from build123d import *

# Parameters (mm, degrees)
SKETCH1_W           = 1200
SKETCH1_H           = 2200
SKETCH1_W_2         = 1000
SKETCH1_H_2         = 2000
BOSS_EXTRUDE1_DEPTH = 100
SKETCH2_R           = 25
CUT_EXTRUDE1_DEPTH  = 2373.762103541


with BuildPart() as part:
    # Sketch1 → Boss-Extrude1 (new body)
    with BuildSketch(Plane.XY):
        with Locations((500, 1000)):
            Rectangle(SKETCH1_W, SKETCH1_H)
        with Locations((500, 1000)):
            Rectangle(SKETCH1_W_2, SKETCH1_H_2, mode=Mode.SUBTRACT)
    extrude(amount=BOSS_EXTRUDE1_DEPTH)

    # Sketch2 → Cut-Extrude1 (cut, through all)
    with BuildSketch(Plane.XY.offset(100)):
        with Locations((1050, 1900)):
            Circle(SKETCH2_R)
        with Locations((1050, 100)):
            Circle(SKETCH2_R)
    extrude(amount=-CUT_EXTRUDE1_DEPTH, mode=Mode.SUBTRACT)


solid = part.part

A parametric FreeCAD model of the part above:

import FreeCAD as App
import Part
import Sketcher


def add_polygon(sketch, points):
    """Adds a closed chain of lines whose ends are joined by coincident constraints."""
    first, n = sketch.GeometryCount, len(points)
    for a, b in zip(points, points[1:] + points[:1]):
        sketch.addGeometry(Part.LineSegment(App.Vector(*a, 0), App.Vector(*b, 0)), False)
    for i in range(n):
        sketch.addConstraint(Sketcher.Constraint("Coincident", first + i, 2, first + (i + 1) % n, 1))

doc = App.newDocument("Part")
body = doc.addObject("PartDesign::Body", "Body")

# Sketch on XY plane
sketch1 = doc.addObject("Sketcher::SketchObject", "Sketch")
body.addObject(sketch1)
sketch1.AttachmentSupport = (doc.XY_Plane, [""])
sketch1.MapMode = "FlatFace"
add_polygon(sketch1, [(-100, 2100), (-100, -100), (1100, -100), (1100, 2100)])  # lines 0-3
add_polygon(sketch1, [(1000, 0), (0, 0), (0, 2000), (1000, 2000)])  # lines 4-7
sketch1.addConstraint([
    Sketcher.Constraint("Vertical", 0),
    Sketcher.Constraint("Horizontal", 1),
    Sketcher.Constraint("Vertical", 2),
    Sketcher.Constraint("Horizontal", 3),
    Sketcher.Constraint("Horizontal", 4),
    Sketcher.Constraint("Vertical", 5),
    Sketcher.Constraint("Horizontal", 6),
    Sketcher.Constraint("Vertical", 7),
    Sketcher.Constraint("Coincident", 4, 2, -1, 1),
    Sketcher.Constraint("DistanceX", 1, 1, 1, 2, 1200.0),
    Sketcher.Constraint("DistanceX", 4, 2, 4, 1, 1000.0),
    Sketcher.Constraint("DistanceY", 0, 2, 0, 1, 2200.0),
    Sketcher.Constraint("DistanceY", 5, 1, 5, 2, 2000.0),
    Sketcher.Constraint("DistanceX", 0, 2, -1, 1, 100.0),
    Sketcher.Constraint("DistanceY", 0, 2, -1, 1, 100.0),
])
pad1 = doc.addObject("PartDesign::Pad", "Pad")
body.addObject(pad1)
pad1.Profile = sketch1
pad1.Length = 100

# Sketch on XY plane
sketch2 = doc.addObject("Sketcher::SketchObject", "Sketch001")
body.addObject(sketch2)
sketch2.AttachmentSupport = (doc.XY_Plane, [""])
sketch2.MapMode = "FlatFace"
sketch2.AttachmentOffset = App.Placement(App.Vector(0, 0, 100), App.Rotation())
sketch2.addGeometry([
    Part.Circle(App.Vector(1050, 1900, 0), App.Vector(0, 0, 1), 25),
    Part.Circle(App.Vector(1050, 100, 0), App.Vector(0, 0, 1), 25),
], False)
sketch2.addConstraint([
    Sketcher.Constraint("Equal", 0, 1),
    Sketcher.Constraint("Vertical", 0, 3, 1, 3),
    Sketcher.Constraint("Diameter", 0, 50.0),
    Sketcher.Constraint("DistanceX", -1, 1, 0, 3, 1050.0),
    Sketcher.Constraint("DistanceY", -1, 1, 0, 3, 1900.0),
    Sketcher.Constraint("DistanceY", -1, 1, 1, 3, 100.0),
])
pocket1 = doc.addObject("PartDesign::Pocket", "Pocket")
body.addObject(pocket1)
pocket1.Profile = sketch2
pocket1.Type = "ThroughAll"

doc.recompute()
